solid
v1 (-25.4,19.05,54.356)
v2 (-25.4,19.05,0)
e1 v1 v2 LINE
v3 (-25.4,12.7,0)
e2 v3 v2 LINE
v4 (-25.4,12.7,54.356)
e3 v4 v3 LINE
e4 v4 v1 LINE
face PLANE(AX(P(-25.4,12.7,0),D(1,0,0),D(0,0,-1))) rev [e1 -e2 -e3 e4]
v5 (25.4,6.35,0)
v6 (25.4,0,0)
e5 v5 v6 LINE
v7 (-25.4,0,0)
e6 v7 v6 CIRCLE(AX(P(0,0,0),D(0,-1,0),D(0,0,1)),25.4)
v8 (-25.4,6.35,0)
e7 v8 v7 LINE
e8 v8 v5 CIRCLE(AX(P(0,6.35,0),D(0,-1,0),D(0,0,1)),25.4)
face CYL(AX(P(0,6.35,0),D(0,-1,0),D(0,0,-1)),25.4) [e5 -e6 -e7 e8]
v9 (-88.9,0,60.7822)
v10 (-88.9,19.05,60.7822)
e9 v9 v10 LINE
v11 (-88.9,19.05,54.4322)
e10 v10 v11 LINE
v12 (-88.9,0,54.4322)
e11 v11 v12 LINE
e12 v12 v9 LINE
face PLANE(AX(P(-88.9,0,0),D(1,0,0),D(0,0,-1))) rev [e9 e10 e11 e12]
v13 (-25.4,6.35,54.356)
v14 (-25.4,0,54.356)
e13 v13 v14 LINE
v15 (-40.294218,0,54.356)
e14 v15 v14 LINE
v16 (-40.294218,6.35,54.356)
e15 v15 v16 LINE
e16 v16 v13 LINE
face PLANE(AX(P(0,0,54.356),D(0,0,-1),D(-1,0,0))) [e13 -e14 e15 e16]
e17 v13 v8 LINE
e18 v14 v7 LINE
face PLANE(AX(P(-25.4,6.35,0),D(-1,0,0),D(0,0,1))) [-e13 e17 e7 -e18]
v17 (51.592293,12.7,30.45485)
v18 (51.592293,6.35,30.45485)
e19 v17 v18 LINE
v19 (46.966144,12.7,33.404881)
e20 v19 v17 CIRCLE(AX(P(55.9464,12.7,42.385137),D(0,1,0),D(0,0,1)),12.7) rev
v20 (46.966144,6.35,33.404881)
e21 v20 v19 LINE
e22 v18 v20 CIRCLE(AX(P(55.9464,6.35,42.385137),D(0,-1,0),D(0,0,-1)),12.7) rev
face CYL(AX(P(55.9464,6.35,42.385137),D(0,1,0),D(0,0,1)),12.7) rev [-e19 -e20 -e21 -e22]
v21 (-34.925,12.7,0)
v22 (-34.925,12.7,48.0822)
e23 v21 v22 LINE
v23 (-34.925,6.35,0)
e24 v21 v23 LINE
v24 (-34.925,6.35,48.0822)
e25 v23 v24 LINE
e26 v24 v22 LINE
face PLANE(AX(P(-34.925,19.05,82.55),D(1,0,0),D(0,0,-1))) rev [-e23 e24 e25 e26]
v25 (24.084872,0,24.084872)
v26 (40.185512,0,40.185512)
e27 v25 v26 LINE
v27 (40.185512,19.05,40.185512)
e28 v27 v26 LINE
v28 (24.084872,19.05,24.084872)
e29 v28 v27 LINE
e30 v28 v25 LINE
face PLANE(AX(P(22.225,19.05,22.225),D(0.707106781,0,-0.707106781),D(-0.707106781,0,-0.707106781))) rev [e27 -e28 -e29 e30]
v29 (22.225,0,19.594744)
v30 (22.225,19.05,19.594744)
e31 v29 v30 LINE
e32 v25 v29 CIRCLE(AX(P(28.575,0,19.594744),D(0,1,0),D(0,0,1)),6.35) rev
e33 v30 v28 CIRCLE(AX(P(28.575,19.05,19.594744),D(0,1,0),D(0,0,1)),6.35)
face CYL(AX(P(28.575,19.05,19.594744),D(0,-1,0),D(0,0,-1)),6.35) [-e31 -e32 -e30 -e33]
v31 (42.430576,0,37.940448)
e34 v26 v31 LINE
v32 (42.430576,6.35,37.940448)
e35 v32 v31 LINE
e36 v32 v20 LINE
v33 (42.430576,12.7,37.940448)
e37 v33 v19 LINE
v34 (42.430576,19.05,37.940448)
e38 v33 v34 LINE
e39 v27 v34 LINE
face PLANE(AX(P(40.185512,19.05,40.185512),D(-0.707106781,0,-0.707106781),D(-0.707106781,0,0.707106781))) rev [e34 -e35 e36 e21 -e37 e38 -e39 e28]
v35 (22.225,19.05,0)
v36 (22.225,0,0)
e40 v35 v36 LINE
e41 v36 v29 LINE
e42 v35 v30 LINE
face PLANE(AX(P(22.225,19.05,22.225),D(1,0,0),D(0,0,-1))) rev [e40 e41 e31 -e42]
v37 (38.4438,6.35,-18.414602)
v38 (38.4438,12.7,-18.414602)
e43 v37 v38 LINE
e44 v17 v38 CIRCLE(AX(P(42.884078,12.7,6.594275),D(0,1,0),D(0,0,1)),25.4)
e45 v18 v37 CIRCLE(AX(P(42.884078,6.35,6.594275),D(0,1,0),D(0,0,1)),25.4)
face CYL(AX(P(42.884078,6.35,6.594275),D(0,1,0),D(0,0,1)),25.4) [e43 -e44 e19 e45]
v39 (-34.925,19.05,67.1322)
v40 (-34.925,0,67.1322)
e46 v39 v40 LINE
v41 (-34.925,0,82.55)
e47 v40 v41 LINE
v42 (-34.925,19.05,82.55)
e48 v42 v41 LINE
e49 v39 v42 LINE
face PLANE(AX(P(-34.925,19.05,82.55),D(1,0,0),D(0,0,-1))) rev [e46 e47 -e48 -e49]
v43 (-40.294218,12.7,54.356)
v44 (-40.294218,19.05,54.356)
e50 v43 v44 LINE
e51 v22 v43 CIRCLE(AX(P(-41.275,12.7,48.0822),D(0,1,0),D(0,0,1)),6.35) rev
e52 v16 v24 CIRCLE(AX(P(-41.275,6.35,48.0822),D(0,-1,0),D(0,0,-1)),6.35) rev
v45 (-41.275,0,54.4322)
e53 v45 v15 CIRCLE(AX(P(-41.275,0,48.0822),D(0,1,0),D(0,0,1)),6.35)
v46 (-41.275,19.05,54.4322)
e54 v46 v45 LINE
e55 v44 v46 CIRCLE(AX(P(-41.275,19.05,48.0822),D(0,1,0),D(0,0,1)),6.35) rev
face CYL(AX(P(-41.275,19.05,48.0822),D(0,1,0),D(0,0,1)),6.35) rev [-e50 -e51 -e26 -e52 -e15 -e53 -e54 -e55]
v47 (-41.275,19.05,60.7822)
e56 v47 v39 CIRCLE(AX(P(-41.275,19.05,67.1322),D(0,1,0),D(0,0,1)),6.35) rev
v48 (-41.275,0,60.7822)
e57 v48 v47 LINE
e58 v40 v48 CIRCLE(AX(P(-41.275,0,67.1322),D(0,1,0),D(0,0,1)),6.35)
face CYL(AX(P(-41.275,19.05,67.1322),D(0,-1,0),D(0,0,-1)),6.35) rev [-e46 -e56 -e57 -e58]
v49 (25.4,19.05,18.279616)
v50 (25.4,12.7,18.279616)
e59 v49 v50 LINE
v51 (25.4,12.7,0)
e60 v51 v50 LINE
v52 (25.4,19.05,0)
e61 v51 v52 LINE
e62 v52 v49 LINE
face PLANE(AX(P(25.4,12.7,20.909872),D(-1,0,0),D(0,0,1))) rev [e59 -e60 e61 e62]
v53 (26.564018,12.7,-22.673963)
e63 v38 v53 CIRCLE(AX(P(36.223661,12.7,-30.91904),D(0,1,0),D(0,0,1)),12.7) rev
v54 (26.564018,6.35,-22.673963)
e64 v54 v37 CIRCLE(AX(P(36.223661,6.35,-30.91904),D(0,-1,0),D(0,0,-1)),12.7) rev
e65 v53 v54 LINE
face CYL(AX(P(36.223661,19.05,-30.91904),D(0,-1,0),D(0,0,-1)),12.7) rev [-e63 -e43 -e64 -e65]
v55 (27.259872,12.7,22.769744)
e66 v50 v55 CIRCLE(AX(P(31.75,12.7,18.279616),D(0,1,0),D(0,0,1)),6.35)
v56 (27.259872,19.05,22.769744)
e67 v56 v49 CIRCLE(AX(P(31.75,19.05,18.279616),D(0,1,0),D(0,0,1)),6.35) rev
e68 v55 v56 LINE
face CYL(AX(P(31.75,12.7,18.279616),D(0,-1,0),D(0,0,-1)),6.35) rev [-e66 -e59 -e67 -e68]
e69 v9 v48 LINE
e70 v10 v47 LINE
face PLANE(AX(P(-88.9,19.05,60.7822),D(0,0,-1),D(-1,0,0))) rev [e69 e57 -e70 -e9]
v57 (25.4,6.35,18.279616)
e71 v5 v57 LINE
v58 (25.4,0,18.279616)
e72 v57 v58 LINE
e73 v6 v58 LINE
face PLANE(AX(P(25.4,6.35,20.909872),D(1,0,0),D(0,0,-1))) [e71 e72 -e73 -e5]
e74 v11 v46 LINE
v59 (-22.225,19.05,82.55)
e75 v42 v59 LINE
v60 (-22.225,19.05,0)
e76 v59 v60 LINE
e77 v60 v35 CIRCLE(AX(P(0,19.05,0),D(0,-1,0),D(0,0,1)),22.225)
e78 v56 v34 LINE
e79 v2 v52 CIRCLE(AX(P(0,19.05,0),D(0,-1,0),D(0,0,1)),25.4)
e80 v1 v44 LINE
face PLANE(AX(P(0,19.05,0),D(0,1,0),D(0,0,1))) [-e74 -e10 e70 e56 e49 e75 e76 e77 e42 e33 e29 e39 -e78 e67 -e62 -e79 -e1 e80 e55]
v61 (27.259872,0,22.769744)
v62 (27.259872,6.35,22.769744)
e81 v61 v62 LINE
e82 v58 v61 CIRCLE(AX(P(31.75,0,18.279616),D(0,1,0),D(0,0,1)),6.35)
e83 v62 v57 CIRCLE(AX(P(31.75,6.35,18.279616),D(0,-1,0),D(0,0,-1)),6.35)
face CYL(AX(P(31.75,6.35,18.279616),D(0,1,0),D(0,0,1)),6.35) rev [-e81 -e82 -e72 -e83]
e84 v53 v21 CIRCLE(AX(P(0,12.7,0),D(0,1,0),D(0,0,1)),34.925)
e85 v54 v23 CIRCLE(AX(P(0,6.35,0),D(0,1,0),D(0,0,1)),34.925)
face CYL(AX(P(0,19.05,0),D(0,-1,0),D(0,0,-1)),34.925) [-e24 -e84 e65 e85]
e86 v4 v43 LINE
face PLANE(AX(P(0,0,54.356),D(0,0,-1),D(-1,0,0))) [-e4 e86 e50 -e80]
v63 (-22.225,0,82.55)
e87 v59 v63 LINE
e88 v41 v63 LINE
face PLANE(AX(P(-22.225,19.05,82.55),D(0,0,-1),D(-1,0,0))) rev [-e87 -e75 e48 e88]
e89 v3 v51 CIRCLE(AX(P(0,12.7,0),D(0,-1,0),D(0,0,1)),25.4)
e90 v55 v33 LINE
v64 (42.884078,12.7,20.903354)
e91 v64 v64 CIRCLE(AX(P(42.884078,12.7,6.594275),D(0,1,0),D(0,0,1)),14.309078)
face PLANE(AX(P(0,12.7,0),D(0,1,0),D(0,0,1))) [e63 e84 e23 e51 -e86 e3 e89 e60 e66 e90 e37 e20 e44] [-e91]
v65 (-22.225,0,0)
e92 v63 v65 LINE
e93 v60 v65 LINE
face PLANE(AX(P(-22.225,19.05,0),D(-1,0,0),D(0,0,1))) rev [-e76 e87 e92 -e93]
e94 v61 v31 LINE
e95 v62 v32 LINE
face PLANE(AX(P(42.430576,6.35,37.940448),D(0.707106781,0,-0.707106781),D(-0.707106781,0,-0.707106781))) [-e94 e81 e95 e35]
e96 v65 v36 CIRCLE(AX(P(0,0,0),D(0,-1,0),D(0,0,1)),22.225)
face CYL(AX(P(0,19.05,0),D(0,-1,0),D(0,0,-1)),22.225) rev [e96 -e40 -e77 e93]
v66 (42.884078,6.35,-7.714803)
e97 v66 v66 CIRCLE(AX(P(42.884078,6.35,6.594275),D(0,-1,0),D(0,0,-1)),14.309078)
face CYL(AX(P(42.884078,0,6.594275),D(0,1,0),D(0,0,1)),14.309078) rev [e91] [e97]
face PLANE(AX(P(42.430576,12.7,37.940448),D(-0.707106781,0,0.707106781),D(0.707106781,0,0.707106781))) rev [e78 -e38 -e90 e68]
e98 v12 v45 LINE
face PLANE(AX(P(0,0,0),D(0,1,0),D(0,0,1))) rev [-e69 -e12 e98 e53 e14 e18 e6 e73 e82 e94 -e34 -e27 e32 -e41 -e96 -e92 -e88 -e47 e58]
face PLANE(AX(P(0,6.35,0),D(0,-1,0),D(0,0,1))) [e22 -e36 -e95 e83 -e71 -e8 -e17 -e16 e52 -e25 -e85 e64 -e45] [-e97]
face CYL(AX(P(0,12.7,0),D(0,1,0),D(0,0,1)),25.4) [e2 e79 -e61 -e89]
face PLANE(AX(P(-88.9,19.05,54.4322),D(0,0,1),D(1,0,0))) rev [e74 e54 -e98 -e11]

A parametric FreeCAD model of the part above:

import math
import FreeCAD as App
import Part
import Sketcher
Q = App.Units.Quantity


def edges_at(feature, points):
    """Names of the edges that pass closest to the given points."""
    edges = feature.Shape.Edges
    near = lambda p: min(range(len(edges)), key=lambda i: edges[i].distToShape(Part.Vertex(*p))[0])
    return sorted({f"Edge{near(p) + 1}" for p in points})


def add_polygon(sketch, points):
    """Adds a closed chain of lines whose ends are joined by coincident constraints."""
    first, n = sketch.GeometryCount, len(points)
    for a, b in zip(points, points[1:] + points[:1]):
        sketch.addGeometry(Part.LineSegment(App.Vector(*a, 0), App.Vector(*b, 0)), False)
    for i in range(n):
        sketch.addConstraint(Sketcher.Constraint("Coincident", first + i, 2, first + (i + 1) % n, 1))

doc = App.newDocument("Part")
body = doc.addObject("PartDesign::Body", "Body")

# Sketch on XZ plane
sketch1 = body.newObject("Sketcher::SketchObject", "Sketch")
sketch1.AttachmentSupport = (doc.getObject("XZ_Plane"), [""])
sketch1.MapMode = "FlatFace"
sketch1.addGeometry(Part.LineSegment(App.Vector(-22.225, 82.55, 0), App.Vector(-22.225, 0, 0)), False)
sketch1.addGeometry(Part.ArcOfCircle(Part.Circle(App.Vector(0, 0, 0), App.Vector(0, 0, 1), 22.225), math.radians(180), math.radians(360)), False)
sketch1.addGeometry(Part.LineSegment(App.Vector(22.225, 0, 0), App.Vector(22.225, 22.225, 0)), False)
sketch1.addGeometry(Part.LineSegment(App.Vector(22.225, 22.225, 0), App.Vector(40.185512, 40.185512, 0)), False)
sketch1.addGeometry(Part.LineSegment(App.Vector(40.185512, 40.185512, 0), App.Vector(49.165768, 31.205256, 0)), False)
sketch1.addGeometry(Part.LineSegment(App.Vector(49.165768, 31.205256, 0), App.Vector(34.925, 16.964488, 0)), False)
sketch1.addGeometry(Part.LineSegment(App.Vector(34.925, 16.964488, 0), App.Vector(34.925, 0, 0)), False)
sketch1.addGeometry(Part.ArcOfCircle(Part.Circle(App.Vector(0, 0, 0), App.Vector(0, 0, 1), 34.925), math.radians(180), math.radians(360)), False)
sketch1.addGeometry(Part.LineSegment(App.Vector(-34.925, 0, 0), App.Vector(-34.925, 82.55, 0)), False)
sketch1.addGeometry(Part.LineSegment(App.Vector(-34.925, 82.55, 0), App.Vector(-22.225, 82.55, 0)), False)
sketch1.addConstraint(Sketcher.Constraint("Tangent", 0, 2, 1, 1))
sketch1.addConstraint(Sketcher.Constraint("Tangent", 1, 2, 2, 1))
sketch1.addConstraint(Sketcher.Constraint("Coincident", 2, 2, 3, 1))
sketch1.addConstraint(Sketcher.Constraint("Coincident", 3, 2, 4, 1))
sketch1.addConstraint(Sketcher.Constraint("Coincident", 4, 2, 5, 1))
sketch1.addConstraint(Sketcher.Constraint("Coincident", 5, 2, 6, 1))
sketch1.addConstraint(Sketcher.Constraint("Tangent", 6, 2, 7, 2))
sketch1.addConstraint(Sketcher.Constraint("Tangent", 7, 1, 8, 1))
sketch1.addConstraint(Sketcher.Constraint("Coincident", 8, 2, 9, 1))
sketch1.addConstraint(Sketcher.Constraint("Coincident", 9, 2, 0, 1))
sketch1.addConstraint(Sketcher.Constraint("Vertical", 0))
sketch1.addConstraint(Sketcher.Constraint("Vertical", 2))
sketch1.addConstraint(Sketcher.Constraint("Vertical", 6))
sketch1.addConstraint(Sketcher.Constraint("Vertical", 8))
sketch1.addConstraint(Sketcher.Constraint("Horizontal", 9))
sketch1.addConstraint(Sketcher.Constraint("Coincident", 1, 3, -1, 1))
sketch1.addConstraint(Sketcher.Constraint("Coincident", 7, 3, -1, 1))
sketch1.addConstraint(Sketcher.Constraint("Perpendicular", 3, 4))
sketch1.addConstraint(Sketcher.Constraint("Perpendicular", 4, 5))
sketch1.addConstraint(Sketcher.Constraint("Distance", 3, Q("1 in")))
sketch1.addConstraint(Sketcher.Constraint("DistanceX", 9, 1, 9, 2, Q("0.5 in")))
sketch1.addConstraint(Sketcher.Constraint("Angle", 3, Q("45 deg")))
sketch1.addConstraint(Sketcher.Constraint("Radius", 1, Q("0.875 in")))
sketch1.addConstraint(Sketcher.Constraint("Distance", 4, Q("0.5 in")))
sketch1.addConstraint(Sketcher.Constraint("DistanceY", 0, 2, 0, 1, Q("3.25 in")))
sketch1.addConstraint(Sketcher.Constraint("DistanceY", 2, 1, 2, 2, Q("0.875 in")))
pad1 = body.newObject("PartDesign::Pad", "Pad")
pad1.Profile = sketch1
pad1.Length = Q("0.75 in")
pad1.Reversed = True

# Sketch on XZ plane
sketch2 = body.newObject("Sketcher::SketchObject", "Sketch001")
sketch2.AttachmentSupport = (doc.getObject("XZ_Plane"), [""])
sketch2.MapMode = "FlatFace"
sketch2.AttachmentOffset = App.Placement(App.Vector(0, 0, -0.5 * 25.4), App.Rotation())
sketch2.addGeometry(Part.LineSegment(App.Vector(-34.925, 0, 0), App.Vector(-34.925, 82.55, 0)), False)
sketch2.addGeometry(Part.LineSegment(App.Vector(-34.925, 82.55, 0), App.Vector(-25.4, 82.55, 0)), False)
sketch2.addGeometry(Part.LineSegment(App.Vector(-25.4, 82.55, 0), App.Vector(-25.4, 0, 0)), False)
sketch2.addGeometry(Part.ArcOfCircle(Part.Circle(App.Vector(0, 0, 0), App.Vector(0, 0, 1), 25.4), math.radians(180), math.radians(360)), False)
sketch2.addGeometry(Part.LineSegment(App.Vector(25.4, 0, 0), App.Vector(25.4, 20.909872, 0)), False)
sketch2.addGeometry(Part.LineSegment(App.Vector(25.4, 20.909872, 0), App.Vector(42.430576, 37.940448, 0)), False)
sketch2.addGeometry(Part.LineSegment(App.Vector(42.430576, 37.940448, 0), App.Vector(49.165768, 31.205256, 0)), False)
sketch2.addGeometry(Part.LineSegment(App.Vector(49.165768, 31.205256, 0), App.Vector(34.925, 16.964488, 0)), False)
sketch2.addGeometry(Part.LineSegment(App.Vector(34.925, 16.964488, 0), App.Vector(34.925, 0, 0)), False)
sketch2.addGeometry(Part.ArcOfCircle(Part.Circle(App.Vector(0, 0, 0), App.Vector(0, 0, 1), 34.925), math.radians(180), math.radians(360)), False)
sketch2.addConstraint(Sketcher.Constraint("Coincident", 0, 2, 1, 1))
sketch2.addConstraint(Sketcher.Constraint("Coincident", 1, 2, 2, 1))
sketch2.addConstraint(Sketcher.Constraint("Tangent", 2, 2, 3, 1))
sketch2.addConstraint(Sketcher.Constraint("Tangent", 3, 2, 4, 1))
sketch2.addConstraint(Sketcher.Constraint("Coincident", 4, 2, 5, 1))
sketch2.addConstraint(Sketcher.Constraint("Coincident", 5, 2, 6, 1))
sketch2.addConstraint(Sketcher.Constraint("Coincident", 6, 2, 7, 1))
sketch2.addConstraint(Sketcher.Constraint("Coincident", 7, 2, 8, 1))
sketch2.addConstraint(Sketcher.Constraint("Tangent", 8, 2, 9, 2))
sketch2.addConstraint(Sketcher.Constraint("Tangent", 9, 1, 0, 1))
sketch2.addConstraint(Sketcher.Constraint("Vertical", 0))
sketch2.addConstraint(Sketcher.Constraint("Horizontal", 1))
sketch2.addConstraint(Sketcher.Constraint("Vertical", 2))
sketch2.addConstraint(Sketcher.Constraint("Vertical", 4))
sketch2.addConstraint(Sketcher.Constraint("Vertical", 8))
sketch2.addConstraint(Sketcher.Constraint("Coincident", 3, 3, -1, 1))
sketch2.addConstraint(Sketcher.Constraint("Coincident", 9, 3, -1, 1))
sketch2.addConstraint(Sketcher.Constraint("Perpendicular", 5, 6))
sketch2.addConstraint(Sketcher.Constraint("Perpendicular", 6, 7))
sketch2.addConstraint(Sketcher.Constraint("Radius", 3, Q("1 in")))
sketch2.addConstraint(Sketcher.Constraint("Angle", 5, Q("45 deg")))
sketch2.addConstraint(Sketcher.Constraint("Radius", 9, Q("1.375 in")))
sketch2.addConstraint(Sketcher.Constraint("DistanceY", 0, 1, 0, 2, Q("3.25 in")))
sketch2.addConstraint(Sketcher.Constraint("Distance", 6, Q("0.375 in")))
sketch2.addConstraint(Sketcher.Constraint("DistanceY", 4, 1, 4, 2, Q("20.909872 mm")))
sketch2.addConstraint(Sketcher.Constraint("Distance", 5, Q("24.084872 mm")))
pocket1 = body.newObject("PartDesign::Pocket", "Pocket")
pocket1.Profile = sketch2
pocket1.Length = Q("0.25 in")
doc.recompute()

datumplane = body.newObject("PartDesign::Plane", "DatumPlane")
datumplane.AttachmentSupport = (doc.getObject("XZ_Plane"), [""])
datumplane.MapMode = "FlatFace"
datumplane.AttachmentOffset = App.Placement(App.Vector(0, 0, -0.375 * 25.4), App.Rotation())
mirrored = body.newObject("PartDesign::Mirrored", "Mirrored")
mirrored.Originals = [pocket1]
mirrored.MirrorPlane = (datumplane, [""])
body.Tip = mirrored
doc.recompute()

fillet = body.newObject("PartDesign::Fillet", "Fillet")
fillet.Base = (mirrored, edges_at(mirrored, [(34.925, 9.525, 16.964), (25.4, 15.875, 20.91), (25.4, 3.175, 20.91)]))
fillet.Radius = Q("0.25 in")
doc.recompute()

fillet2 = body.newObject("PartDesign::Fillet", "Fillet001")
fillet2.Base = (fillet, edges_at(fillet, [(22.225, 9.525, 22.225)]))
fillet2.Radius = Q("0.25 in")

# Sketch on YZ plane
sketch3 = body.newObject("Sketcher::SketchObject", "Sketch002")
sketch3.AttachmentSupport = (doc.getObject("YZ_Plane"), [""])
sketch3.MapMode = "FlatFace"
sketch3.AttachmentOffset = App.Placement(App.Vector(0, 0, -1 * 25.4), App.Rotation())
add_polygon(sketch3, [(19.05, 54.4322), (0, 54.4322), (0, 60.7822), (19.05, 60.7822)])  # lines 0-3
sketch3.addConstraint(Sketcher.Constraint("Horizontal", 0))
sketch3.addConstraint(Sketcher.Constraint("Vertical", 1))
sketch3.addConstraint(Sketcher.Constraint("Horizontal", 2))
sketch3.addConstraint(Sketcher.Constraint("Vertical", 3))
sketch3.addConstraint(Sketcher.Constraint("PointOnObject", 0, 2, -2))
sketch3.addConstraint(Sketcher.Constraint("DistanceX", 0, 2, 0, 1, Q("0.75 in")))
sketch3.addConstraint(Sketcher.Constraint("DistanceY", 1, 1, 1, 2, Q("0.25 in")))
sketch3.addConstraint(Sketcher.Constraint("DistanceY", -1, 1, 0, 2, Q("2.143 in")))
pad2 = body.newObject("PartDesign::Pad", "Pad001")
pad2.Profile = sketch3
pad2.Length = Q("2.5 in")
pad2.Reversed = True

# Sketch on XY plane
sketch4 = body.newObject("Sketcher::SketchObject", "Sketch003")
sketch4.AttachmentSupport = (doc.getObject("XY_Plane"), [""])
sketch4.MapMode = "FlatFace"
sketch4.AttachmentOffset = App.Placement(App.Vector(0, 0, 3.25 * 25.4), App.Rotation())
add_polygon(sketch4, [(-34.925, 19.05), (-34.925, 0), (-22.225, 0), (-22.225, 19.05)])  # lines 0-3
sketch4.addConstraint(Sketcher.Constraint("Vertical", 0))
sketch4.addConstraint(Sketcher.Constraint("Horizontal", 1))
sketch4.addConstraint(Sketcher.Constraint("Vertical", 2))
sketch4.addConstraint(Sketcher.Constraint("Horizontal", 3))
sketch4.addConstraint(Sketcher.Constraint("PointOnObject", 0, 2, -1))
sketch4.addConstraint(Sketcher.Constraint("DistanceX", 1, 1, 1, 2, Q("0.5 in")))
sketch4.addConstraint(Sketcher.Constraint("DistanceY", 0, 2, 0, 1, Q("0.75 in")))
sketch4.addConstraint(Sketcher.Constraint("DistanceX", 0, 2, -1, 1, Q("1.375 in")))
pad3 = body.newObject("PartDesign::Pad", "Pad002")
pad3.Profile = sketch4
pad3.Length = Q("1.11 in")
pad3.Reversed = True
doc.recompute()

fillet3 = body.newObject("PartDesign::Fillet", "Fillet002")
fillet3.Base = (pad3, edges_at(pad3, [(-34.925, 9.525, 60.782)]))
fillet3.Radius = Q("0.25 in")
doc.recompute()

fillet4 = body.newObject("PartDesign::Fillet", "Fillet003")
fillet4.Base = (fillet3, edges_at(fillet3, [(-34.925, 9.525, 54.432)]))
fillet4.Radius = Q("0.25 in")

# Sketch on XZ plane
sketch5 = body.newObject("Sketcher::SketchObject", "Sketch004")
sketch5.AttachmentSupport = (doc.getObject("XZ_Plane"), [""])
sketch5.MapMode = "FlatFace"
sketch5.AttachmentOffset = App.Placement(App.Vector(0, 0, -0.5 * 25.4), App.Rotation())
sketch5.addGeometry(Part.LineSegment(App.Vector(34.925, 0, 0), App.Vector(34.925, 14.334232, 0)), False)
sketch5.addGeometry(Part.ArcOfCircle(Part.Circle(App.Vector(41.275, 14.334232, 0), App.Vector(0, 0, 1), 6.35), math.radians(135), math.radians(180)), False)
sketch5.addGeometry(Part.LineSegment(App.Vector(36.784872, 18.82436, 0), App.Vector(49.165768, 31.205256, 0)), False)
sketch5.addGeometry(Part.ArcOfCircle(Part.Circle(App.Vector(42.884078, 6.594275, 0), App.Vector(0, 0, 1), 25.4), math.radians(-117.657104), math.radians(75.681574)), False)
sketch5.addGeometry(Part.ArcOfCircle(Part.Circle(App.Vector(0, 0, 0), App.Vector(0, 0, 1), 34.925), math.radians(-27.088299), math.radians(0)), False)
sketch5.addConstraint(Sketcher.Constraint("Tangent", 0, 2, 1, 2))
sketch5.addConstraint(Sketcher.Constraint("Tangent", 1, 1, 2, 1))
sketch5.addConstraint(Sketcher.Constraint("Coincident", 2, 2, 3, 2))
sketch5.addConstraint(Sketcher.Constraint("Coincident", 3, 1, 4, 1))
sketch5.addConstraint(Sketcher.Constraint("Tangent", 4, 2, 0, 1))
sketch5.addConstraint(Sketcher.Constraint("Vertical", 0))
sketch5.addConstraint(Sketcher.Constraint("Coincident", 4, 3, -1, 1))
sketch5.addConstraint(Sketcher.Constraint("Radius", 3, Q("1 in")))
sketch5.addConstraint(Sketcher.Constraint("Radius", 1, Q("0.25 in")))
sketch5.addConstraint(Sketcher.Constraint("Angle", 2, Q("45 deg")))
sketch5.addConstraint(Sketcher.Constraint("Radius", 4, Q("1.375 in")))
sketch5.addConstraint(Sketcher.Constraint("DistanceY", 0, 1, 0, 2, Q("14.334232 mm")))
sketch5.addConstraint(Sketcher.Constraint("Distance", 2, Q("17.509232 mm")))
sketch5.addConstraint(Sketcher.Constraint("DistanceX", -1, 1, 3, 3, Q("42.884078 mm")))
pad4 = body.newObject("PartDesign::Pad", "Pad003")
pad4.Profile = sketch5
pad4.Length = Q("0.25 in")
doc.recompute()

fillet5 = body.newObject("PartDesign::Fillet", "Fillet004")
fillet5.Base = (pad4, edges_at(pad4, [(31.094, 9.525, -15.904)]))
fillet5.Radius = Q("0.5 in")
doc.recompute()

fillet6 = body.newObject("PartDesign::Fillet", "Fillet005")
fillet6.Base = (fillet5, edges_at(fillet5, [(49.166, 9.525, 31.205)]))
fillet6.Radius = Q("0.5 in")

# Sketch on XZ plane
sketch6 = body.newObject("Sketcher::SketchObject", "Sketch005")
sketch6.AttachmentSupport = (doc.getObject("XZ_Plane"), [""])
sketch6.MapMode = "FlatFace"
sketch6.AttachmentOffset = App.Placement(App.Vector(0, 0, -0.5 * 25.4), App.Rotation())
sketch6.addGeometry(Part.Circle(App.Vector(42.884078, 6.594275, 0), App.Vector(0, 0, 1), 14.309078), False)
sketch6.addConstraint(Sketcher.Constraint("Diameter", 0, Q("28.618157 mm")))
sketch6.addConstraint(Sketcher.Constraint("DistanceX", -1, 1, 0, 3, Q("42.884078 mm")))
sketch6.addConstraint(Sketcher.Constraint("DistanceY", -1, 1, 0, 3, Q("6.594275 mm")))
pocket2 = body.newObject("PartDesign::Pocket", "Pocket001")
pocket2.Profile = sketch6
pocket2.Type = "ThroughAll"
pocket2.Reversed = True

doc.recompute()
